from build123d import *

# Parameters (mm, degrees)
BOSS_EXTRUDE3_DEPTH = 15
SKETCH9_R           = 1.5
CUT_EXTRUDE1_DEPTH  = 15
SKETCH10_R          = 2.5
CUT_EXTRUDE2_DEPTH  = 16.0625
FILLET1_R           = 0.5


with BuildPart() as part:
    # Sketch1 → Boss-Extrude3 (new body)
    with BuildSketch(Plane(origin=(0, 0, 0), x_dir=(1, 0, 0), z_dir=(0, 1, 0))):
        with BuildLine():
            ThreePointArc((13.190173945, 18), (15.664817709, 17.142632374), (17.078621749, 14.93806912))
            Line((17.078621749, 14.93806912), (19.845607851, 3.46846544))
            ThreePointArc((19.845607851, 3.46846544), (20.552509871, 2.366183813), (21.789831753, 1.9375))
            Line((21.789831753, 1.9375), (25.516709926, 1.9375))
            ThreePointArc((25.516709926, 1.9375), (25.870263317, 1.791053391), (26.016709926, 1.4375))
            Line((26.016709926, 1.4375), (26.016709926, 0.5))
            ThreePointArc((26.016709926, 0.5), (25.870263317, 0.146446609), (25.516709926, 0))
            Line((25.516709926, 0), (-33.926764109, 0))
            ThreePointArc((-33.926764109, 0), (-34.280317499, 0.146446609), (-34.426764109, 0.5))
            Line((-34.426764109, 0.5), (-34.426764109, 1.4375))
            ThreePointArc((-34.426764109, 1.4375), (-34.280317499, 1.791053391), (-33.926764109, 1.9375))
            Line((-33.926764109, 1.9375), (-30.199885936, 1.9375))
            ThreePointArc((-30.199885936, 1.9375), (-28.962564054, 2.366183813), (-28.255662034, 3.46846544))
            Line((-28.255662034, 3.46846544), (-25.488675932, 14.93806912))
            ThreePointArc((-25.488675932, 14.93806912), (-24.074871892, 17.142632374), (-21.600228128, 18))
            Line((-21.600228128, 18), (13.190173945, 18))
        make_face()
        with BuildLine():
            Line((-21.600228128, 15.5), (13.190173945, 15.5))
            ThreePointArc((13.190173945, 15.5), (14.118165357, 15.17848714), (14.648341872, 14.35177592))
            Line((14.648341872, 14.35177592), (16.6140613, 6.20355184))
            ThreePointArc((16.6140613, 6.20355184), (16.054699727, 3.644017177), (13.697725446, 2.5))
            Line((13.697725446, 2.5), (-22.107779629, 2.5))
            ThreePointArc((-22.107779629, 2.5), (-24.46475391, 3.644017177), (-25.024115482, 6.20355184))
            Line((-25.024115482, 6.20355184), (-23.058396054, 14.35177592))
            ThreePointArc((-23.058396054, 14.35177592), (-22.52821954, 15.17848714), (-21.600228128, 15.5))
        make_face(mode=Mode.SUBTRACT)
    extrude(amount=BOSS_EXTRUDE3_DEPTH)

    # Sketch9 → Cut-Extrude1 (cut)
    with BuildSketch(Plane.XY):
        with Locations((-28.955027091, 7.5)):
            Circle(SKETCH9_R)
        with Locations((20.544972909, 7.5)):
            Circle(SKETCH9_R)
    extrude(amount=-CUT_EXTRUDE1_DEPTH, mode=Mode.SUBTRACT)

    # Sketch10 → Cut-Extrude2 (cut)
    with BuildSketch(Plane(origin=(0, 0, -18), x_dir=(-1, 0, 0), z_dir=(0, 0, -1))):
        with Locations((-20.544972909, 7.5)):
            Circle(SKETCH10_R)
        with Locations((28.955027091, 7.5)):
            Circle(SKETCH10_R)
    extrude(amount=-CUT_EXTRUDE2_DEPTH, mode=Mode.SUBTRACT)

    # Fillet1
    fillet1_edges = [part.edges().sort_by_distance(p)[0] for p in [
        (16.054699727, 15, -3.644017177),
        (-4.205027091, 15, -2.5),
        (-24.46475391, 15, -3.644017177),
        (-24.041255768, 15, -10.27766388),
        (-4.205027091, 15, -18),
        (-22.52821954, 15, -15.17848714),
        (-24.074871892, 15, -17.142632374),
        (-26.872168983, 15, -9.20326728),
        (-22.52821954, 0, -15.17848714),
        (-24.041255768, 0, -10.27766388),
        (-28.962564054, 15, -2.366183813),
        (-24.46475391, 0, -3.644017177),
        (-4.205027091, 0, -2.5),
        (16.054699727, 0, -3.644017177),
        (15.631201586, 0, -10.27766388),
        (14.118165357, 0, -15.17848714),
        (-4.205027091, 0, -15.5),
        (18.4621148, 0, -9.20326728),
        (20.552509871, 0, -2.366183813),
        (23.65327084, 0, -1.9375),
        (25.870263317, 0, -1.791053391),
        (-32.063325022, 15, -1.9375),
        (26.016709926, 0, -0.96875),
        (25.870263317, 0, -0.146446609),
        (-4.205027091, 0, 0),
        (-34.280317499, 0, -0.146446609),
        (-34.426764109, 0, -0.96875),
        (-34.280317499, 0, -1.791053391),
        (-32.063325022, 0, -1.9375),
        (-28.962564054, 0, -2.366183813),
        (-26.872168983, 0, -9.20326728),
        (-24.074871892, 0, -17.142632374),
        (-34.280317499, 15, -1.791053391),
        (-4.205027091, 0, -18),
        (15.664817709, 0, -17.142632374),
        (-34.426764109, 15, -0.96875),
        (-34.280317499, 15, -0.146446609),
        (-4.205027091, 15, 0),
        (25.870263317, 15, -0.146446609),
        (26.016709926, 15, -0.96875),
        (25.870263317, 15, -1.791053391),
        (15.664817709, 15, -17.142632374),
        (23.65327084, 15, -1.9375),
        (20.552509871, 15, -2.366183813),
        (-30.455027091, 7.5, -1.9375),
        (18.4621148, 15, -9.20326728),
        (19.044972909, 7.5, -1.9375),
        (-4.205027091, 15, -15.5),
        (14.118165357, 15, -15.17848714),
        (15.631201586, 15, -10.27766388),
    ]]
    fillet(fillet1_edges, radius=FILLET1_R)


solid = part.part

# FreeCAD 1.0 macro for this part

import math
import FreeCAD as App
import Part
import Sketcher
from FreeCAD import Vector
Q = App.Units.Quantity


def edges_at(feature, points):
    """Names of the edges that pass closest to the given points."""
    edges = feature.Shape.Edges
    near = lambda p: min(range(len(edges)), key=lambda i: edges[i].distToShape(Part.Vertex(*p))[0])
    return sorted({f"Edge{near(p) + 1}" for p in points})

doc = App.newDocument("Part")
body = doc.addObject("PartDesign::Body", "Body")

sketch1 = body.newObject("Sketcher::SketchObject", "Sketch")
sketch1.AttachmentSupport = (doc.getObject("XZ_Plane"), [""])
sketch1.MapMode = "FlatFace"
sketch1.addGeometry([
    Part.ArcOfCircle(Part.Circle(Vector(13.19, -14, 0), Vector(0, 0, 1), 4), math.radians(-90), math.radians(-14)),
    Part.LineSegment(Vector(13.19, -18, 0), Vector(-21.6, -18, 0)),
    Part.ArcOfCircle(Part.Circle(Vector(-21.6, -14, 0), Vector(0, 0, 1), 4), math.radians(-166), math.radians(-90)),
    Part.LineSegment(Vector(-25.49, -14.94, 0), Vector(-28.26, -3.47, 0)),
    Part.ArcOfCircle(Part.Circle(Vector(-30.2, -3.94, 0), Vector(0, 0, 1), 2), math.radians(14), math.radians(90)),
    Part.LineSegment(Vector(-30.2, -1.94, 0), Vector(-33.93, -1.94, 0)),
    Part.ArcOfCircle(Part.Circle(Vector(-33.93, -1.44, 0), Vector(0, 0, 1), 0.5), math.radians(180), math.radians(270)),
    Part.LineSegment(Vector(-34.43, -1.44, 0), Vector(-34.43, -0.5, 0)),
    Part.ArcOfCircle(Part.Circle(Vector(-33.93, -0.5, 0), Vector(0, 0, 1), 0.5), math.radians(90), math.radians(180)),
    Part.LineSegment(Vector(-33.93, 0, 0), Vector(25.52, 0, 0)),
    Part.ArcOfCircle(Part.Circle(Vector(25.52, -0.5, 0), Vector(0, 0, 1), 0.5), math.radians(0), math.radians(90)),
    Part.LineSegment(Vector(26.02, -0.5, 0), Vector(26.02, -1.44, 0)),
    Part.ArcOfCircle(Part.Circle(Vector(25.52, -1.44, 0), Vector(0, 0, 1), 0.5), math.radians(-90), math.radians(0)),
    Part.LineSegment(Vector(25.52, -1.94, 0), Vector(21.79, -1.94, 0)),
    Part.ArcOfCircle(Part.Circle(Vector(21.79, -3.94, 0), Vector(0, 0, 1), 2), math.radians(90), math.radians(166)),
    Part.LineSegment(Vector(19.85, -3.47, 0), Vector(17.08, -14.94, 0)),
    Part.LineSegment(Vector(-21.6, -15.5, 0), Vector(13.19, -15.5, 0)),
    Part.ArcOfCircle(Part.Circle(Vector(13.19, -14, 0), Vector(0, 0, 1), 1.5), math.radians(-90), math.radians(-14)),
    Part.LineSegment(Vector(14.65, -14.35, 0), Vector(16.61, -6.2, 0)),
    Part.ArcOfCircle(Part.Circle(Vector(13.7, -5.5, 0), Vector(0, 0, 1), 3), math.radians(-14), math.radians(90)),
    Part.LineSegment(Vector(13.7, -2.5, 0), Vector(-22.11, -2.5, 0)),
    Part.ArcOfCircle(Part.Circle(Vector(-22.11, -5.5, 0), Vector(0, 0, 1), 3), math.radians(90), math.radians(194)),
    Part.LineSegment(Vector(-25.02, -6.2, 0), Vector(-23.06, -14.35, 0)),
    Part.ArcOfCircle(Part.Circle(Vector(-21.6, -14, 0), Vector(0, 0, 1), 1.5), math.radians(-166), math.radians(-90)),
], False)
sketch1.addConstraint([
    Sketcher.Constraint("Tangent", 0, 1, 1, 1),
    Sketcher.Constraint("Tangent", 1, 2, 2, 2),
    Sketcher.Constraint("Tangent", 2, 1, 3, 1),
    Sketcher.Constraint("Tangent", 3, 2, 4, 1),
    Sketcher.Constraint("Tangent", 4, 2, 5, 1),
    Sketcher.Constraint("Tangent", 5, 2, 6, 2),
    Sketcher.Constraint("Tangent", 6, 1, 7, 1),
    Sketcher.Constraint("Tangent", 7, 2, 8, 2),
    Sketcher.Constraint("Tangent", 8, 1, 9, 1),
    Sketcher.Constraint("Tangent", 9, 2, 10, 2),
    Sketcher.Constraint("Tangent", 10, 1, 11, 1),
    Sketcher.Constraint("Tangent", 11, 2, 12, 2),
    Sketcher.Constraint("Tangent", 12, 1, 13, 1),
    Sketcher.Constraint("Tangent", 13, 2, 14, 1),
    Sketcher.Constraint("Tangent", 14, 2, 15, 1),
    Sketcher.Constraint("Tangent", 15, 2, 0, 2),
    Sketcher.Constraint("Tangent", 16, 2, 17, 1),
    Sketcher.Constraint("Tangent", 17, 2, 18, 1),
    Sketcher.Constraint("Tangent", 18, 2, 19, 1),
    Sketcher.Constraint("Tangent", 19, 2, 20, 1),
    Sketcher.Constraint("Tangent", 20, 2, 21, 1),
    Sketcher.Constraint("Tangent", 21, 2, 22, 1),
    Sketcher.Constraint("Tangent", 22, 2, 23, 1),
    Sketcher.Constraint("Tangent", 23, 2, 16, 1),
    Sketcher.Constraint("Horizontal", 1),
    Sketcher.Constraint("Horizontal", 5),
    Sketcher.Constraint("Vertical", 7),
    Sketcher.Constraint("Horizontal", 9),
    Sketcher.Constraint("Vertical", 11),
    Sketcher.Constraint("Horizontal", 13),
    Sketcher.Constraint("Horizontal", 16),
    Sketcher.Constraint("Horizontal", 20),
    Sketcher.Constraint("Coincident", 17, 3, 0, 3),
    Sketcher.Constraint("Coincident", 23, 3, 2, 3),
    Sketcher.Constraint("Equal", 0, 2),
    Sketcher.Constraint("Equal", 6, 8),
    Sketcher.Constraint("Equal", 8, 10),
    Sketcher.Constraint("Equal", 10, 12),
    Sketcher.Constraint("Equal", 4, 14),
    Sketcher.Constraint("Equal", 19, 21),
    Sketcher.Constraint("PointOnObject", 8, 1, -1),
    Sketcher.Constraint("Parallel", 15, 18),
    Sketcher.Constraint("Parallel", 3, 22),
    Sketcher.Constraint("Horizontal", 6, 3, 12, 3),
    Sketcher.Constraint("Horizontal", 3, 2, 14, 2),
    Sketcher.Constraint("Equal", 5, 13),
    Sketcher.Constraint("Radius", 0, Q("4 mm")),
    Sketcher.Constraint("Radius", 4, Q("2 mm")),
    Sketcher.Constraint("Radius", 19, Q("3 mm")),
    Sketcher.Constraint("Radius", 6, Q("0.5 mm")),
    Sketcher.Constraint("Radius", 17, Q("1.5 mm")),
    Sketcher.Constraint("DistanceY", 0, 3, -1, 1, Q("14 mm")),
    Sketcher.Constraint("DistanceY", 19, 3, 10, 3, Q("5 mm")),
    Sketcher.Constraint("DistanceY", 7, 1, 7, 2, Q("0.9375 mm")),
    Sketcher.Constraint("DistanceX", 5, 2, 5, 1, Q("3.726878 mm")),
    Sketcher.Constraint("Distance", 18, Q("8.381981 mm")),
    Sketcher.Constraint("DistanceX", 1, 2, 1, 1, Q("34.790402 mm")),
    Sketcher.Constraint("DistanceX", 2, 3, -1, 1, Q("21.600228 mm")),
])
pad1 = body.newObject("PartDesign::Pad", "Pad")
pad1.Profile = sketch1
pad1.Length = 15
pad1.Reversed = True

sketch2 = body.newObject("Sketcher::SketchObject", "Sketch001")
sketch2.AttachmentSupport = (doc.getObject("XY_Plane"), [""])
sketch2.MapMode = "FlatFace"
sketch2.addGeometry([
    Part.Circle(Vector(-29, 7.5, 0), Vector(0, 0, 1), 1.5),
    Part.Circle(Vector(20.5, 7.5, 0), Vector(0, 0, 1), 1.5),
], False)
sketch2.addConstraint([
    Sketcher.Constraint("Equal", 0, 1),
    Sketcher.Constraint("Horizontal", 0, 3, 1, 3),
    Sketcher.Constraint("Diameter", 0, Q("3 mm")),
    Sketcher.Constraint("DistanceY", -1, 1, 0, 3, Q("7.5 mm")),
    Sketcher.Constraint("DistanceX", 0, 3, 1, 3, Q("49.5 mm")),
    Sketcher.Constraint("DistanceX", 0, 3, -1, 1, Q("28.955027 mm")),
])
pocket1 = body.newObject("PartDesign::Pocket", "Pocket")
pocket1.Profile = sketch2
pocket1.Length = 15

sketch3 = body.newObject("Sketcher::SketchObject", "Sketch002")
sketch3.AttachmentSupport = (doc.getObject("XY_Plane"), [""])
sketch3.MapMode = "FlatFace"
sketch3.AttachmentOffset = App.Placement(Vector(0, 0, -18), App.Rotation())
sketch3.addGeometry([
    Part.Circle(Vector(20.5, 7.5, 0), Vector(0, 0, 1), 2.5),
    Part.Circle(Vector(-29, 7.5, 0), Vector(0, 0, 1), 2.5),
], False)
sketch3.addConstraint([
    Sketcher.Constraint("Equal", 0, 1),
    Sketcher.Constraint("Horizontal", 0, 3, 1, 3),
    Sketcher.Constraint("Diameter", 0, Q("5 mm")),
    Sketcher.Constraint("DistanceY", -1, 1, 0, 3, Q("7.5 mm")),
    Sketcher.Constraint("DistanceX", 1, 3, 0, 3, Q("49.5 mm")),
    Sketcher.Constraint("DistanceX", -1, 1, 0, 3, Q("20.544973 mm")),
])
pocket2 = body.newObject("PartDesign::Pocket", "Pocket001")
pocket2.Profile = sketch3
pocket2.Length = 16.0625
pocket2.Reversed = True
doc.recompute()

fillet = body.newObject("PartDesign::Fillet", "Fillet")
fillet.Base = (pocket2, edges_at(pocket2, [
    (16.055, 15, -3.644),
    (-4.205, 15, -2.5),
    (-24.465, 15, -3.644),
    (-24.041, 15, -10.278),
    (-4.205, 15, -18),
    (-22.528, 15, -15.178),
    (-24.075, 15, -17.143),
    (-26.872, 15, -9.203),
    (-22.528, 0, -15.178),
    (-24.041, 0, -10.278),
    (-28.963, 15, -2.366),
    (-24.465, 0, -3.644),
    (-4.205, 0, -2.5),
    (16.055, 0, -3.644),
    (15.631, 0, -10.278),
    (14.118, 0, -15.178),
    (-4.205, 0, -15.5),
    (18.462, 0, -9.203),
    (20.553, 0, -2.366),
    (23.653, 0, -1.938),
    (25.87, 0, -1.791),
    (-32.063, 15, -1.938),
    (26.017, 0, -0.969),
    (25.87, 0, -0.146),
    (-4.205, 0, 0),
    (-34.28, 0, -0.146),
    (-34.427, 0, -0.969),
    (-34.28, 0, -1.791),
    (-32.063, 0, -1.938),
    (-28.963, 0, -2.366),
    (-26.872, 0, -9.203),
    (-24.075, 0, -17.143),
    (-34.28, 15, -1.791),
    (-4.205, 0, -18),
    (15.665, 0, -17.143),
    (-34.427, 15, -0.969),
    (-34.28, 15, -0.146),
    (-4.205, 15, 0),
    (25.87, 15, -0.146),
    (26.017, 15, -0.969),
    (25.87, 15, -1.791),
    (15.665, 15, -17.143),
    (23.653, 15, -1.938),
    (20.553, 15, -2.366),
    (-30.455, 7.5, -1.938),
    (18.462, 15, -9.203),
    (19.045, 7.5, -1.938),
    (-4.205, 15, -15.5),
    (14.118, 15, -15.178),
    (15.631, 15, -10.278),
]))
fillet.Radius = 0.5

doc.recompute()
